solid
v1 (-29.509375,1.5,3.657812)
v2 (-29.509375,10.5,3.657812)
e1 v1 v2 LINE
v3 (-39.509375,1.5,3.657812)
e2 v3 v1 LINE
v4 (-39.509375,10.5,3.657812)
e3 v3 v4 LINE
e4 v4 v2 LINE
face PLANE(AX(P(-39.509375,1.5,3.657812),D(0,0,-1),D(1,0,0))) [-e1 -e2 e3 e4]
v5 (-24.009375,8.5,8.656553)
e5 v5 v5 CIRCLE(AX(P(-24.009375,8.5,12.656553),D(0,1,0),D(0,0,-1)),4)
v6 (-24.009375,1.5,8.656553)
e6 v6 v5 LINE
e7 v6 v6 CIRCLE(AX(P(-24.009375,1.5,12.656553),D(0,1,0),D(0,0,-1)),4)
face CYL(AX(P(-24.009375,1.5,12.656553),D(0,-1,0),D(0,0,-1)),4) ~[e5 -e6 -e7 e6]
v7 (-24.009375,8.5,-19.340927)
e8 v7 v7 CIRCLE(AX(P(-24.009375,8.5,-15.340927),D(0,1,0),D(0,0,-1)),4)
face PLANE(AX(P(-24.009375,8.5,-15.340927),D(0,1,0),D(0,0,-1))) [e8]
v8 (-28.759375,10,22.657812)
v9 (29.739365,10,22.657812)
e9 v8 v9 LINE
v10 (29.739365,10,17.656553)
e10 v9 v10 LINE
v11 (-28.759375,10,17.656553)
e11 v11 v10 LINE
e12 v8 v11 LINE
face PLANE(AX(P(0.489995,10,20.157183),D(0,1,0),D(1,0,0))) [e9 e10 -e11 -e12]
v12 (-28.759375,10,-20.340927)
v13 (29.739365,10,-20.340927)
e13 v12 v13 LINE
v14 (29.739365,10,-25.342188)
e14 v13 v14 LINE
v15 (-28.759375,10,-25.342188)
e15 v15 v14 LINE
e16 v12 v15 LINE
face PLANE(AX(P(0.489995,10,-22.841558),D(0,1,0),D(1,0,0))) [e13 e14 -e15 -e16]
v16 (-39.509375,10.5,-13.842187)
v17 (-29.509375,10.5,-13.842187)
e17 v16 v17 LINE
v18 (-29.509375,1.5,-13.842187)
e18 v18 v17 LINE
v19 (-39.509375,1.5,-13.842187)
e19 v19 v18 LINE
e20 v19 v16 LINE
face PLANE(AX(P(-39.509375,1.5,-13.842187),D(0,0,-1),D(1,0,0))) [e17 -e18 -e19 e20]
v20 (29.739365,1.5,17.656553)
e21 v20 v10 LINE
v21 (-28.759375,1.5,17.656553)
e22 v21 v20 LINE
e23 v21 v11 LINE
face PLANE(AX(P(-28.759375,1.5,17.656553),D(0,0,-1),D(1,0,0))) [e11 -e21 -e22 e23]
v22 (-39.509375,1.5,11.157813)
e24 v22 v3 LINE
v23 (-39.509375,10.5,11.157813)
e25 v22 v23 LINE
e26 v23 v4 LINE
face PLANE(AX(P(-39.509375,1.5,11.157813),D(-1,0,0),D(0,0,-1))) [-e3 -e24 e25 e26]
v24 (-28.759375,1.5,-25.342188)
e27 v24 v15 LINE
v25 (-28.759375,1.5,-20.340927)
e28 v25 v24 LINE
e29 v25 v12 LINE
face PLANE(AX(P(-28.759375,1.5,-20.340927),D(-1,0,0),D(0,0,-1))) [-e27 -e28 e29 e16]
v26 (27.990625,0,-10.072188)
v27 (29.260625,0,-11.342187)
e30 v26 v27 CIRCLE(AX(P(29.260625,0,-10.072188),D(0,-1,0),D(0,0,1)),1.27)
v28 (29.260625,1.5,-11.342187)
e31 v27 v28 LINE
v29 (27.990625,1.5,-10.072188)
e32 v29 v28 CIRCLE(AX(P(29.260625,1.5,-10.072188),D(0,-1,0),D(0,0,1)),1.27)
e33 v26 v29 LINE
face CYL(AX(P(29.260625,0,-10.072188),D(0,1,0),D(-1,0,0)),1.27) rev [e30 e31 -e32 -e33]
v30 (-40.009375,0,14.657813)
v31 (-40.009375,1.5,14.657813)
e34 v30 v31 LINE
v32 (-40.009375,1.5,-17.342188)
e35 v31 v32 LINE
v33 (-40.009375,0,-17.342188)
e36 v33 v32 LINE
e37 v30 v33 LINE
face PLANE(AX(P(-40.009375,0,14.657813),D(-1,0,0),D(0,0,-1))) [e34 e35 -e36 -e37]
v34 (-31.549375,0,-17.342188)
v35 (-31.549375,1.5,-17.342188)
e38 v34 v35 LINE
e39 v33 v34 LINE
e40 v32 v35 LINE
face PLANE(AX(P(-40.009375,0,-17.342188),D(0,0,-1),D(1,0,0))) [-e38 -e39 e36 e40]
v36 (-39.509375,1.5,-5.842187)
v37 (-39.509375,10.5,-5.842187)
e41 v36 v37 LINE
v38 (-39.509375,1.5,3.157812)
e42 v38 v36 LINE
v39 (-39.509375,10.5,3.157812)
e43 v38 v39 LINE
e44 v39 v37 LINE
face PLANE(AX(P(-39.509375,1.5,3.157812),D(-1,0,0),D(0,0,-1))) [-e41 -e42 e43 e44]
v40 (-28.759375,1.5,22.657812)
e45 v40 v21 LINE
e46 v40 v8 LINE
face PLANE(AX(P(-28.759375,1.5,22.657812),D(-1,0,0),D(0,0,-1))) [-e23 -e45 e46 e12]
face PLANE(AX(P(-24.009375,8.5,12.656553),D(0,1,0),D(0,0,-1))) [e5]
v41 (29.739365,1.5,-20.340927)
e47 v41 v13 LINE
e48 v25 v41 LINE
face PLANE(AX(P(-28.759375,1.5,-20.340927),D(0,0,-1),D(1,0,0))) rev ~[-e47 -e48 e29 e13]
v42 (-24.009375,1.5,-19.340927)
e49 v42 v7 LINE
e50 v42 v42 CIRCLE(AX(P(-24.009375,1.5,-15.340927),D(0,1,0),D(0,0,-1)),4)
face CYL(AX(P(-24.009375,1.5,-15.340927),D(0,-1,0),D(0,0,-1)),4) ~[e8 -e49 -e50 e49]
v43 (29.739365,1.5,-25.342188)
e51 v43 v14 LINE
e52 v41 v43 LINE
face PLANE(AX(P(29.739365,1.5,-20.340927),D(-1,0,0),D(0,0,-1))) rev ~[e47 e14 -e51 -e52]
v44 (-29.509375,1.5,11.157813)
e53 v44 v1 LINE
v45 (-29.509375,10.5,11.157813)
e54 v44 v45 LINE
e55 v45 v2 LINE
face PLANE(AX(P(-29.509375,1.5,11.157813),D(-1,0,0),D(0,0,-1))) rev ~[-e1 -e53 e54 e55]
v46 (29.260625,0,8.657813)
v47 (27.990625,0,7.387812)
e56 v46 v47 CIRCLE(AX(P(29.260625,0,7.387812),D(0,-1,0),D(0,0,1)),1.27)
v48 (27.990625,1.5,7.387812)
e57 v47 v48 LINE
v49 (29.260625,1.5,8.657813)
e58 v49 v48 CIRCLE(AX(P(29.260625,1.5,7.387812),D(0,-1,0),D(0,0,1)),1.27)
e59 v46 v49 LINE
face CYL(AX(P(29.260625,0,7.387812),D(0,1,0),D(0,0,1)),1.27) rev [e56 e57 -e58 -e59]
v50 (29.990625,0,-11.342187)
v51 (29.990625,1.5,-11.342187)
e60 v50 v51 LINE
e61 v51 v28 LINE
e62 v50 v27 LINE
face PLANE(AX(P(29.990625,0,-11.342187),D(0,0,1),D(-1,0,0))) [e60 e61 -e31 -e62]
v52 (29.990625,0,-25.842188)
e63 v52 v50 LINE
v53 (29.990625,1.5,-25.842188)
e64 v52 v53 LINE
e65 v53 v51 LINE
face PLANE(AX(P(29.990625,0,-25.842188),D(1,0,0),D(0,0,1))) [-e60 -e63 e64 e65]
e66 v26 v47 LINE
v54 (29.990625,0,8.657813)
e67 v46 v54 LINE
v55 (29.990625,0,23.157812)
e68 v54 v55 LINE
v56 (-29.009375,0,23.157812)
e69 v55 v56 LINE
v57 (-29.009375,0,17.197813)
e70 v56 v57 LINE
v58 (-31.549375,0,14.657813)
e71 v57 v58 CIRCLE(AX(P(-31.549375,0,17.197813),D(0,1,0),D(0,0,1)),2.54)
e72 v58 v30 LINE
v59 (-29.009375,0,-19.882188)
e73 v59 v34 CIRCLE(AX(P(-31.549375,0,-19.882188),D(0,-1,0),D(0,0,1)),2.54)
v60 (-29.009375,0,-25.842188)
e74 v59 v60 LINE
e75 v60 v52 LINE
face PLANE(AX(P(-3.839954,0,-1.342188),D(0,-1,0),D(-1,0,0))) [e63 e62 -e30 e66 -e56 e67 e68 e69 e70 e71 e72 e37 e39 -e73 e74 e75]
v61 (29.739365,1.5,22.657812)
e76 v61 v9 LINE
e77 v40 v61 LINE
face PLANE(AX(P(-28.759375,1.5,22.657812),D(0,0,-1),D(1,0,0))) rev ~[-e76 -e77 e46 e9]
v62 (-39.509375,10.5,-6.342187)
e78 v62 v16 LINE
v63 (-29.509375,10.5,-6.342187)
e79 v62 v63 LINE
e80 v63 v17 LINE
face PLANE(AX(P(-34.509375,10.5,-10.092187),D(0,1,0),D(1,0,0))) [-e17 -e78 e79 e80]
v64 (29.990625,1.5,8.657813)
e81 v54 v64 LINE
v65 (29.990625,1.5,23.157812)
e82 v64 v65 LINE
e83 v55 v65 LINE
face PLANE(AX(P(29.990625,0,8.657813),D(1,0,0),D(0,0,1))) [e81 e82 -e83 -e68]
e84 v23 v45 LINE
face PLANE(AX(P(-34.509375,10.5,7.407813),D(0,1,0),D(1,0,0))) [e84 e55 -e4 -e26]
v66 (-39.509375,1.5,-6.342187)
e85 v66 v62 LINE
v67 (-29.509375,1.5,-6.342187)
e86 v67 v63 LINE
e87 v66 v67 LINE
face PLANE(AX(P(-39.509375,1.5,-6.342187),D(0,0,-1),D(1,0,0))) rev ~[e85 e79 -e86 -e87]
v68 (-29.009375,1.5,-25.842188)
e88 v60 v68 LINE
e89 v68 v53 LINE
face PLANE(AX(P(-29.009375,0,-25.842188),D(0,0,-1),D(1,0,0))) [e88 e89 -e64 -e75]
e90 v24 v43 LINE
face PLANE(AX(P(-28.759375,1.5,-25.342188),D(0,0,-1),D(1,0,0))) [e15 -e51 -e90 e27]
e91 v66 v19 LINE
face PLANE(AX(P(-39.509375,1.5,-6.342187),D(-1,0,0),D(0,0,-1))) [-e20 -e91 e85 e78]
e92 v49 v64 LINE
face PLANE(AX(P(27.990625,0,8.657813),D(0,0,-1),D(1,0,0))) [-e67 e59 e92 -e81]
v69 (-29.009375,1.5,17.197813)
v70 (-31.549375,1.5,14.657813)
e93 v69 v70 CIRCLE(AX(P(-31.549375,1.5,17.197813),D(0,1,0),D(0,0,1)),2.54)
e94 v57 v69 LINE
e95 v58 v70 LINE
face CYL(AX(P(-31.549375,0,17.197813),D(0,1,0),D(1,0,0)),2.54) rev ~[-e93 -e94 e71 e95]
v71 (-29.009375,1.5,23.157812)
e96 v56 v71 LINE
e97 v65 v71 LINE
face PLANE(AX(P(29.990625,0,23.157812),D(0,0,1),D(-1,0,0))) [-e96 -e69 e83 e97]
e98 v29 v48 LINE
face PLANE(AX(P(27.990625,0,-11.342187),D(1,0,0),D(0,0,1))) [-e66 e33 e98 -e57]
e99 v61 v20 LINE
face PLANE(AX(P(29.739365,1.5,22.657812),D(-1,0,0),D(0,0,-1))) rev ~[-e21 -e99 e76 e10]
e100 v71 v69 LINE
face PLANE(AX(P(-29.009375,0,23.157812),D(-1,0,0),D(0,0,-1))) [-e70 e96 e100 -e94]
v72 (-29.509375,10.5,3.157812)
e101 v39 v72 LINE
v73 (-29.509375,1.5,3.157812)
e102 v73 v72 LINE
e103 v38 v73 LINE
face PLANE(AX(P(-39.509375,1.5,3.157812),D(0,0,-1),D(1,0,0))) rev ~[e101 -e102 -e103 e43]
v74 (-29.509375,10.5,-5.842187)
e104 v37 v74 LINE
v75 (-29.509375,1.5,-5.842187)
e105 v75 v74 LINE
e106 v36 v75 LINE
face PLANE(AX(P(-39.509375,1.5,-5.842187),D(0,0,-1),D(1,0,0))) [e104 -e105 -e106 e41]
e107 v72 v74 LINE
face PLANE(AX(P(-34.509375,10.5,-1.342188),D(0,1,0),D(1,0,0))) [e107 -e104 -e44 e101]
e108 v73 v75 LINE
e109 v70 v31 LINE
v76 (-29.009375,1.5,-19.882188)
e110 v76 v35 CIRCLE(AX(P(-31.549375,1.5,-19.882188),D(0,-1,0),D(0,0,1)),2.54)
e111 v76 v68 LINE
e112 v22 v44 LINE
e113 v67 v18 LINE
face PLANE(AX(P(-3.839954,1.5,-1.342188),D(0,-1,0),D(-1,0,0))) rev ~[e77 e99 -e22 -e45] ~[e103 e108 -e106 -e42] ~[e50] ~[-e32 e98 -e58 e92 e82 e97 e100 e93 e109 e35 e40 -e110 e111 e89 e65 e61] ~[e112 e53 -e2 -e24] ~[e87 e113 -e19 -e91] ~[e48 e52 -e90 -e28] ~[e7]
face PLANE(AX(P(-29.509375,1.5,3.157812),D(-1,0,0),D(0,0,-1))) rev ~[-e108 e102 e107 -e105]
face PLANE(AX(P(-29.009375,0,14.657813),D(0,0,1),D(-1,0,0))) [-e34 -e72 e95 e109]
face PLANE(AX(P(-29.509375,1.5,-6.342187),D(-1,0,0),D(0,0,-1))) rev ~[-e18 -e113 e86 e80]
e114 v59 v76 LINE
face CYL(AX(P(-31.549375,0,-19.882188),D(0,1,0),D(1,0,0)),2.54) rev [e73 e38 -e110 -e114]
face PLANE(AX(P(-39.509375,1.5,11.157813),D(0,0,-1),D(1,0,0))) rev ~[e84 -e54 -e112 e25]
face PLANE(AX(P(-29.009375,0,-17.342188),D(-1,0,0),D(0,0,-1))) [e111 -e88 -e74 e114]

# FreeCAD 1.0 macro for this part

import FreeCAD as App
import Part
import Sketcher

V = App.Vector


def edges_at(feature, points):
    """Names of the edges that pass closest to the given points."""
    edges = feature.Shape.Edges
    near = lambda p: min(range(len(edges)), key=lambda i: edges[i].distToShape(Part.Vertex(*p))[0])
    return sorted({f"Edge{near(p) + 1}" for p in points})


def add_polygon(sketch, points):
    """Adds a closed chain of lines whose ends are joined by coincident constraints."""
    first, n = sketch.GeometryCount, len(points)
    for a, b in zip(points, points[1:] + points[:1]):
        sketch.addGeometry(Part.LineSegment(App.Vector(*a, 0), App.Vector(*b, 0)), False)
    for i in range(n):
        sketch.addConstraint(Sketcher.Constraint("Coincident", first + i, 2, first + (i + 1) % n, 1))

doc = App.newDocument("Part")
body = doc.addObject("PartDesign::Body", "Body")

sketch1 = body.newObject("Sketcher::SketchObject", "Sketch")
sketch1.AttachmentSupport = (doc.getObject("XZ_Plane"), [""])
sketch1.MapMode = "FlatFace"
add_polygon(sketch1, [(30, -25.8), (-29, -25.8), (-29, -17.3), (-40, -17.3), (-40, 14.7), (-29, 14.7), (-29, 23.2), (30, 23.2), (30, 8.7), (28, 8.7), (28, -11.3), (30, -11.3)])
sketch1.addConstraint(Sketcher.Constraint("Horizontal", 0))
sketch1.addConstraint(Sketcher.Constraint("Vertical", 1))
sketch1.addConstraint(Sketcher.Constraint("Horizontal", 2))
sketch1.addConstraint(Sketcher.Constraint("Vertical", 3))
sketch1.addConstraint(Sketcher.Constraint("Horizontal", 4))
sketch1.addConstraint(Sketcher.Constraint("Vertical", 5))
sketch1.addConstraint(Sketcher.Constraint("Horizontal", 6))
sketch1.addConstraint(Sketcher.Constraint("Vertical", 7))
sketch1.addConstraint(Sketcher.Constraint("Horizontal", 8))
sketch1.addConstraint(Sketcher.Constraint("Vertical", 9))
sketch1.addConstraint(Sketcher.Constraint("Horizontal", 10))
sketch1.addConstraint(Sketcher.Constraint("Vertical", 11))
sketch1.addConstraint(Sketcher.Constraint("Vertical", 1, 2, 4, 2))
sketch1.addConstraint(Sketcher.Constraint("Vertical", 7, 2, 10, 2))
sketch1.addConstraint(Sketcher.Constraint("Equal", 1, 5))
sketch1.addConstraint(Sketcher.Constraint("Equal", 7, 11))
sketch1.addConstraint(Sketcher.Constraint("DistanceX", 0, 2, 0, 1, 59.0))
sketch1.addConstraint(Sketcher.Constraint("DistanceX", 2, 2, 2, 1, 11.0))
sketch1.addConstraint(Sketcher.Constraint("DistanceX", 8, 2, 8, 1, 2.0))
sketch1.addConstraint(Sketcher.Constraint("DistanceY", 3, 1, 3, 2, 32.0))
sketch1.addConstraint(Sketcher.Constraint("DistanceY", 9, 2, 9, 1, 20.0))
sketch1.addConstraint(Sketcher.Constraint("DistanceY", 1, 1, 1, 2, 8.5))
sketch1.addConstraint(Sketcher.Constraint("DistanceX", 0, 2, -1, 1, 29.009375))
sketch1.addConstraint(Sketcher.Constraint("DistanceY", 0, 2, -1, 1, 25.842188))
pad1 = body.newObject("PartDesign::Pad", "Pad")
pad1.Profile = sketch1
pad1.Length = 1.5
pad1.Reversed = True

sketch2 = body.newObject("Sketcher::SketchObject", "Sketch001")
sketch2.AttachmentSupport = (doc.getObject("XZ_Plane"), [""])
sketch2.MapMode = "FlatFace"
sketch2.AttachmentOffset = App.Placement(V(0, 0, -1.5), App.Rotation())
add_polygon(sketch2, [(-29, 18), (-29, 23), (30, 23), (30, 18)])
add_polygon(sketch2, [(-29, -25), (-29, -20), (30, -20), (30, -25)])
sketch2.addConstraint(Sketcher.Constraint("Vertical", 0))
sketch2.addConstraint(Sketcher.Constraint("Horizontal", 1))
sketch2.addConstraint(Sketcher.Constraint("Vertical", 2))
sketch2.addConstraint(Sketcher.Constraint("Horizontal", 3))
sketch2.addConstraint(Sketcher.Constraint("Vertical", 4))
sketch2.addConstraint(Sketcher.Constraint("Horizontal", 5))
sketch2.addConstraint(Sketcher.Constraint("Vertical", 6))
sketch2.addConstraint(Sketcher.Constraint("Horizontal", 7))
sketch2.addConstraint(Sketcher.Constraint("Vertical", 3, 2, 4, 2))
sketch2.addConstraint(Sketcher.Constraint("Vertical", 2, 2, 5, 2))
sketch2.addConstraint(Sketcher.Constraint("Equal", 2, 4))
sketch2.addConstraint(Sketcher.Constraint("DistanceY", 6, 2, 1, 2, 48.0))
sketch2.addConstraint(Sketcher.Constraint("DistanceX", 1, 1, 1, 2, 58.49874))
sketch2.addConstraint(Sketcher.Constraint("DistanceY", 0, 1, 0, 2, 5.00126))
sketch2.addConstraint(Sketcher.Constraint("DistanceX", 0, 2, -1, 1, 28.759375))
sketch2.addConstraint(Sketcher.Constraint("DistanceY", -1, 1, 0, 2, 22.657812))
pad2 = body.newObject("PartDesign::Pad", "Pad001")
pad2.Profile = sketch2
pad2.Length = 8.5
pad2.Reversed = True

sketch3 = body.newObject("Sketcher::SketchObject", "Sketch002")
sketch3.AttachmentSupport = (doc.getObject("XZ_Plane"), [""])
sketch3.MapMode = "FlatFace"
sketch3.AttachmentOffset = App.Placement(V(0, 0, -1.5), App.Rotation())
add_polygon(sketch3, [(-40, -14), (-40, -6), (-30, -6), (-30, -14)])
add_polygon(sketch3, [(-40, -6), (-40, 3), (-30, 3), (-30, -6)])
add_polygon(sketch3, [(-40, 4), (-40, 11), (-30, 11), (-30, 4)])
sketch3.addConstraint(Sketcher.Constraint("Vertical", 0))
sketch3.addConstraint(Sketcher.Constraint("Horizontal", 1))
sketch3.addConstraint(Sketcher.Constraint("Vertical", 2))
sketch3.addConstraint(Sketcher.Constraint("Horizontal", 3))
sketch3.addConstraint(Sketcher.Constraint("Vertical", 4))
sketch3.addConstraint(Sketcher.Constraint("Horizontal", 5))
sketch3.addConstraint(Sketcher.Constraint("Vertical", 6))
sketch3.addConstraint(Sketcher.Constraint("Horizontal", 7))
sketch3.addConstraint(Sketcher.Constraint("Vertical", 8))
sketch3.addConstraint(Sketcher.Constraint("Horizontal", 9))
sketch3.addConstraint(Sketcher.Constraint("Vertical", 10))
sketch3.addConstraint(Sketcher.Constraint("Horizontal", 11))
sketch3.addConstraint(Sketcher.Constraint("Vertical", 3, 2, 4, 2))
sketch3.addConstraint(Sketcher.Constraint("Vertical", 2, 2, 5, 2))
sketch3.addConstraint(Sketcher.Constraint("Vertical", 7, 2, 8, 2))
sketch3.addConstraint(Sketcher.Constraint("Vertical", 6, 2, 9, 2))
sketch3.addConstraint(Sketcher.Constraint("Equal", 2, 8))
sketch3.addConstraint(Sketcher.Constraint("DistanceX", 1, 1, 1, 2, 10.0))
sketch3.addConstraint(Sketcher.Constraint("DistanceY", 4, 1, 4, 2, 9.0))
sketch3.addConstraint(Sketcher.Constraint("DistanceY", 0, 1, 0, 2, 7.5))
sketch3.addConstraint(Sketcher.Constraint("DistanceY", 3, 2, 4, 2, 17.0))
sketch3.addConstraint(Sketcher.Constraint("DistanceY", 4, 2, 8, 2, 8.0))
sketch3.addConstraint(Sketcher.Constraint("DistanceX", 0, 2, -1, 1, 39.509375))
sketch3.addConstraint(Sketcher.Constraint("DistanceY", 0, 2, -1, 1, 6.342187))
pad3 = body.newObject("PartDesign::Pad", "Pad002")
pad3.Profile = sketch3
pad3.Length = 9
pad3.Reversed = True

sketch4 = body.newObject("Sketcher::SketchObject", "Sketch003")
sketch4.AttachmentSupport = (doc.getObject("XZ_Plane"), [""])
sketch4.MapMode = "FlatFace"
sketch4.AttachmentOffset = App.Placement(V(0, 0, -1.5), App.Rotation())
sketch4.addGeometry(Part.Circle(V(-24, -15.3, 0), V(0, 0, 1), 4), False)
sketch4.addGeometry(Part.Circle(V(-24, 12.7, 0), V(0, 0, 1), 4), False)
sketch4.addConstraint(Sketcher.Constraint("Equal", 0, 1))
sketch4.addConstraint(Sketcher.Constraint("Vertical", 0, 3, 1, 3))
sketch4.addConstraint(Sketcher.Constraint("Diameter", 0, 8.0))
sketch4.addConstraint(Sketcher.Constraint("DistanceY", 0, 3, 1, 3, 27.99748))
sketch4.addConstraint(Sketcher.Constraint("DistanceX", 0, 3, -1, 1, 24.009375))
sketch4.addConstraint(Sketcher.Constraint("DistanceY", 0, 3, -1, 1, 15.340927))
pad4 = body.newObject("PartDesign::Pad", "Pad003")
pad4.Profile = sketch4
pad4.Length = 7
pad4.Reversed = True
doc.recompute()

fillet = body.newObject("PartDesign::Fillet", "Fillet")
fillet.Base = (pad4, edges_at(pad4, [(-29.009, 0.75, 14.658), (-29.009, 0.75, -17.342)]))
fillet.Radius = 2.54
doc.recompute()

fillet2 = body.newObject("PartDesign::Fillet", "Fillet001")
fillet2.Base = (fillet, edges_at(fillet, [(27.991, 0.75, -11.342), (27.991, 0.75, 8.658)]))
fillet2.Radius = 1.27

doc.recompute()
